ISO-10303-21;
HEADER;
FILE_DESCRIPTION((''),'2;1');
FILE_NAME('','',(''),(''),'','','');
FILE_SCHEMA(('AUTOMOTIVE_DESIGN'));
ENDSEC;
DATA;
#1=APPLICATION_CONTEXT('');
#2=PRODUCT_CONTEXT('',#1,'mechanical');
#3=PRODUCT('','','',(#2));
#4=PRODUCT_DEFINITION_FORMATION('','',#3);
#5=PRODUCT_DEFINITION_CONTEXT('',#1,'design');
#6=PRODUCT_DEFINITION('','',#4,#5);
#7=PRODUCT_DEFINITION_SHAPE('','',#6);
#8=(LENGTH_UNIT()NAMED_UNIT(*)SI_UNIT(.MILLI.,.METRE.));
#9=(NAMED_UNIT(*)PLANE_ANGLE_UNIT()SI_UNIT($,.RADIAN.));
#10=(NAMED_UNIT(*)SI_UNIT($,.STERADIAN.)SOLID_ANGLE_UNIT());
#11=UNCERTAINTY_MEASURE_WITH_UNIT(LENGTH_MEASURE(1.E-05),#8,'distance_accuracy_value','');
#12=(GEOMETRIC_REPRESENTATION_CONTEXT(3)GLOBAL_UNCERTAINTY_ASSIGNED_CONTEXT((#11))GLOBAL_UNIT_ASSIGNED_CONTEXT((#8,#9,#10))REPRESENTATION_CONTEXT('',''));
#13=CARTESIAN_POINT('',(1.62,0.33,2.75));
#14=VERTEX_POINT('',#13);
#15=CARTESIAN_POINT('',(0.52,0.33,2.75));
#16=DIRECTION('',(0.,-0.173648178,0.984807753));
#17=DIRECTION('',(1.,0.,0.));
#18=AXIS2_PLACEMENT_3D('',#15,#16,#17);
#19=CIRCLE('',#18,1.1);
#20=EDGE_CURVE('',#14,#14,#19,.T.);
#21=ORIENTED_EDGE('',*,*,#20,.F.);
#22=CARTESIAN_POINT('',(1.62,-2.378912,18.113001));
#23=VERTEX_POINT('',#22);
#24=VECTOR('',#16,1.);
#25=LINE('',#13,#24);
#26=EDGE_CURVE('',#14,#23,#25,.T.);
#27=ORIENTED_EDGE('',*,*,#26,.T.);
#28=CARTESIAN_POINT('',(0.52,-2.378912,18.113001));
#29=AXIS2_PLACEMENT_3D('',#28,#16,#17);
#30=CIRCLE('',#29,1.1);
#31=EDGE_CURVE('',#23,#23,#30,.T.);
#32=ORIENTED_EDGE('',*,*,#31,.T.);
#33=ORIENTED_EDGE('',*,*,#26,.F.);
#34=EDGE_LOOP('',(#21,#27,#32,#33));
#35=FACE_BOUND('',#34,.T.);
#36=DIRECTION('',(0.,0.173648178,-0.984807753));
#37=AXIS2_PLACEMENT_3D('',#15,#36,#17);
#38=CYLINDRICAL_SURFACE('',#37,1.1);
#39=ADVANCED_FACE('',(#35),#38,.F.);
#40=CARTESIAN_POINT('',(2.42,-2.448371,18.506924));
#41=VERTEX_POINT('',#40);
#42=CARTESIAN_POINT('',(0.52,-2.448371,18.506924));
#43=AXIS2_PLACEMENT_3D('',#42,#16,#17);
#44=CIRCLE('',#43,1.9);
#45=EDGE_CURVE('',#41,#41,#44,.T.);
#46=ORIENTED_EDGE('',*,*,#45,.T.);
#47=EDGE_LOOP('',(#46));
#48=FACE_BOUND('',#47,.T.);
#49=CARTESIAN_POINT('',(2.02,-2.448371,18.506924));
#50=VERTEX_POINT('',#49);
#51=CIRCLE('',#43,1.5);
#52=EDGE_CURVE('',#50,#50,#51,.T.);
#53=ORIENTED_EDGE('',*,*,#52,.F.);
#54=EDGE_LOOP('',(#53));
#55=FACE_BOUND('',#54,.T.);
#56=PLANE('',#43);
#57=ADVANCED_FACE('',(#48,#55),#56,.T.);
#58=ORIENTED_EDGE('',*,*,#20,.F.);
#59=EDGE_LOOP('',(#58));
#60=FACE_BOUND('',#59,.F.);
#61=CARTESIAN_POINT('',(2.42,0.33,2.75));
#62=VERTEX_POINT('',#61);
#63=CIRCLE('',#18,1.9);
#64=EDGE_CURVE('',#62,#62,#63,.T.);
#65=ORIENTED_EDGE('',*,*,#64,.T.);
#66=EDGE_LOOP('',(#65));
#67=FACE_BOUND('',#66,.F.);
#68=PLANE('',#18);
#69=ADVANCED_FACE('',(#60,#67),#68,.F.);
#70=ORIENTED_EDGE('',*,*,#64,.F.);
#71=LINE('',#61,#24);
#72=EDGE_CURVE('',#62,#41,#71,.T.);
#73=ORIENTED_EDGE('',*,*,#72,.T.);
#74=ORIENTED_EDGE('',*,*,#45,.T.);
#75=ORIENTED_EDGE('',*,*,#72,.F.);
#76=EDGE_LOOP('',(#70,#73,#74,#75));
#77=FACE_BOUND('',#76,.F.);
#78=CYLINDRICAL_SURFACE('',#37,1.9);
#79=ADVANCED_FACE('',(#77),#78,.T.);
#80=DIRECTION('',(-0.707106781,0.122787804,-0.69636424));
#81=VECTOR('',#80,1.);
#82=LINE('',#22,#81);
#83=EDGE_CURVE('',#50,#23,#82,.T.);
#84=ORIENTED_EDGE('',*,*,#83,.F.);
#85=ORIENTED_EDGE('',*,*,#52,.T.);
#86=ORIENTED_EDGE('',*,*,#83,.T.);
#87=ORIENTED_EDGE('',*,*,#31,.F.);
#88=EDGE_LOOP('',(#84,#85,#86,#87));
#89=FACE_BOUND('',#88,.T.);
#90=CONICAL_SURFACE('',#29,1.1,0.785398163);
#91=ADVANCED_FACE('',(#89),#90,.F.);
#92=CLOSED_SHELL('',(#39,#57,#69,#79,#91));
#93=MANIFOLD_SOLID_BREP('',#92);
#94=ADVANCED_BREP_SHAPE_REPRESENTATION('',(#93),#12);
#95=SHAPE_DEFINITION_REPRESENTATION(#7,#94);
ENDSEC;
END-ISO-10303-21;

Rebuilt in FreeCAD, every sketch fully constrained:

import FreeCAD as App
import Part
import Sketcher

V = App.Vector
Q = App.Units.Quantity


def edges_at(feature, points):
    """Names of the edges that pass closest to the given points."""
    edges = feature.Shape.Edges
    near = lambda p: min(range(len(edges)), key=lambda i: edges[i].distToShape(Part.Vertex(*p))[0])
    return sorted({f"Edge{near(p) + 1}" for p in points})

doc = App.newDocument("Part")
params = doc.addObject("Spreadsheet::Sheet", "Params")
for row, (alias, value) in enumerate([
    ("sketch1_diameter", "2.2 mm"),
    ("pad1_length", "16 mm"),
    ("sketch2_diameter", "3.8 mm"),
    ("pad2_length", "16 mm"),
    ("chamfer_size", "0.4 mm"),
], start=1):
    params.set(f"A{row}", alias)
    params.set(f"B{row}", "=" + value)
    params.setAlias(f"B{row}", alias)

body = doc.addObject("PartDesign::Body", "Body")

sketch1 = body.newObject("Sketcher::SketchObject", "Sketch")
sketch1.AttachmentSupport = (doc.getObject("XY_Plane"), [""])
sketch1.MapMode = "FlatFace"
sketch1.addGeometry(Part.Circle(V(0, 0, 0), V(0, 0, 1), 1.1), False)
sketch1.addConstraint([
    Sketcher.Constraint("Coincident", 0, 3, -1, 1),
    Sketcher.Constraint("Diameter", 0, Q("2.2 mm")),
])
sketch1.setExpression("Constraints[1]", "Params.sketch1_diameter")
pad1 = body.newObject("PartDesign::Pad", "Pad")
pad1.Profile = sketch1
pad1.setExpression("Length", "Params.pad1_length")
body2 = doc.addObject("PartDesign::Body", "Body001")
doc.recompute()

body.Placement = App.Placement(V(0.52, 0.33, 2.75), App.Rotation(V(1, 0, 0), 10))
boolean = body2.newObject("PartDesign::Boolean", "Boolean")
boolean.Type = "Fuse"
boolean.addObjects([body])
body3 = doc.addObject("PartDesign::Body", "Body002")

sketch2 = body3.newObject("Sketcher::SketchObject", "Sketch001")
sketch2.AttachmentSupport = (doc.getObject("XY_Plane002"), [""])
sketch2.MapMode = "FlatFace"
sketch2.addGeometry(Part.Circle(V(0, 0, 0), V(0, 0, 1), 1.9), False)
sketch2.addConstraint([
    Sketcher.Constraint("Coincident", 0, 3, -1, 1),
    Sketcher.Constraint("Diameter", 0, Q("3.8 mm")),
])
sketch2.setExpression("Constraints[1]", "Params.sketch2_diameter")
pad2 = body3.newObject("PartDesign::Pad", "Pad001")
pad2.Profile = sketch2
pad2.setExpression("Length", "Params.pad2_length")
body4 = doc.addObject("PartDesign::Body", "Body003")
doc.recompute()

body3.Placement = App.Placement(V(0.52, 0.33, 2.75), App.Rotation(V(1, 0, 0), 10))
boolean2 = body4.newObject("PartDesign::Boolean", "Boolean001")
boolean2.Type = "Fuse"
boolean2.addObjects([body3])
doc.recompute()

boolean3 = body4.newObject("PartDesign::Boolean", "Boolean002")
boolean3.Type = "Cut"
boolean3.addObjects([body2])
doc.recompute()

chamfer = body4.newObject("PartDesign::Chamfer", "Chamfer")
chamfer.Base = (boolean3, edges_at(boolean3, [(-0.58, -2.448, 18.507)]))
chamfer.setExpression("Size", "Params.chamfer_size")

doc.recompute()
